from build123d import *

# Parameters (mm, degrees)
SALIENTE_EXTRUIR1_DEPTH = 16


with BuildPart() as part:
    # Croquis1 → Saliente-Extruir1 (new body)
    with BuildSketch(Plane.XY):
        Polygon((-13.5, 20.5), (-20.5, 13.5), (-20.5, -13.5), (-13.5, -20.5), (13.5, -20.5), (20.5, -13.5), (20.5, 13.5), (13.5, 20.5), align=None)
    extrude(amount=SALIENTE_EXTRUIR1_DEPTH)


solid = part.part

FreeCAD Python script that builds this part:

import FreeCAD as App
import Part
import Sketcher

V = App.Vector
Q = App.Units.Quantity

doc = App.newDocument("Part")
body = doc.addObject("PartDesign::Body", "Body")

sketch1 = body.newObject("Sketcher::SketchObject", "Sketch")
sketch1.AttachmentSupport = (doc.getObject("XY_Plane"), [""])
sketch1.MapMode = "FlatFace"
sketch1.addGeometry(Part.LineSegment(V(-14, 20, 0), V(-20, 14, 0)), False)
sketch1.addGeometry(Part.LineSegment(V(-20, 14, 0), V(-20, -14, 0)), False)
sketch1.addGeometry(Part.LineSegment(V(-20, -14, 0), V(-14, -20, 0)), False)
sketch1.addGeometry(Part.LineSegment(V(-14, -20, 0), V(14, -20, 0)), False)
sketch1.addGeometry(Part.LineSegment(V(14, -20, 0), V(20, -14, 0)), False)
sketch1.addGeometry(Part.LineSegment(V(20, -14, 0), V(20, 14, 0)), False)
sketch1.addGeometry(Part.LineSegment(V(20, 14, 0), V(14, 20, 0)), False)
sketch1.addGeometry(Part.LineSegment(V(14, 20, 0), V(-14, 20, 0)), False)
sketch1.addConstraint(Sketcher.Constraint("Coincident", 0, 2, 1, 1))
sketch1.addConstraint(Sketcher.Constraint("Coincident", 1, 2, 2, 1))
sketch1.addConstraint(Sketcher.Constraint("Coincident", 2, 2, 3, 1))
sketch1.addConstraint(Sketcher.Constraint("Coincident", 3, 2, 4, 1))
sketch1.addConstraint(Sketcher.Constraint("Coincident", 4, 2, 5, 1))
sketch1.addConstraint(Sketcher.Constraint("Coincident", 5, 2, 6, 1))
sketch1.addConstraint(Sketcher.Constraint("Coincident", 6, 2, 7, 1))
sketch1.addConstraint(Sketcher.Constraint("Coincident", 7, 2, 0, 1))
sketch1.addConstraint(Sketcher.Constraint("Vertical", 1))
sketch1.addConstraint(Sketcher.Constraint("Horizontal", 3))
sketch1.addConstraint(Sketcher.Constraint("Vertical", 5))
sketch1.addConstraint(Sketcher.Constraint("Horizontal", 7))
sketch1.addConstraint(Sketcher.Constraint("Symmetric", 0, 2, 4, 2, -1, 1))
sketch1.addConstraint(Sketcher.Constraint("Symmetric", 2, 2, 6, 2, -1, 1))
sketch1.addConstraint(Sketcher.Constraint("Perpendicular", 0, 2))
sketch1.addConstraint(Sketcher.Constraint("Perpendicular", 2, 4))
sketch1.addConstraint(Sketcher.Constraint("Perpendicular", 4, 6))
sketch1.addConstraint(Sketcher.Constraint("Horizontal", 1, 2, 4, 2))
sketch1.addConstraint(Sketcher.Constraint("Vertical", 3, 2, 6, 2))
sketch1.addConstraint(Sketcher.Constraint("Equal", 7, 1))
sketch1.addConstraint(Sketcher.Constraint("DistanceX", 3, 1, 3, 2, Q("27 mm")))
sketch1.addConstraint(Sketcher.Constraint("DistanceX", 1, 2, 2, 2, Q("7 mm")))
pad1 = body.newObject("PartDesign::Pad", "Pad")
pad1.Profile = sketch1
pad1.Length = 16

doc.recompute()
